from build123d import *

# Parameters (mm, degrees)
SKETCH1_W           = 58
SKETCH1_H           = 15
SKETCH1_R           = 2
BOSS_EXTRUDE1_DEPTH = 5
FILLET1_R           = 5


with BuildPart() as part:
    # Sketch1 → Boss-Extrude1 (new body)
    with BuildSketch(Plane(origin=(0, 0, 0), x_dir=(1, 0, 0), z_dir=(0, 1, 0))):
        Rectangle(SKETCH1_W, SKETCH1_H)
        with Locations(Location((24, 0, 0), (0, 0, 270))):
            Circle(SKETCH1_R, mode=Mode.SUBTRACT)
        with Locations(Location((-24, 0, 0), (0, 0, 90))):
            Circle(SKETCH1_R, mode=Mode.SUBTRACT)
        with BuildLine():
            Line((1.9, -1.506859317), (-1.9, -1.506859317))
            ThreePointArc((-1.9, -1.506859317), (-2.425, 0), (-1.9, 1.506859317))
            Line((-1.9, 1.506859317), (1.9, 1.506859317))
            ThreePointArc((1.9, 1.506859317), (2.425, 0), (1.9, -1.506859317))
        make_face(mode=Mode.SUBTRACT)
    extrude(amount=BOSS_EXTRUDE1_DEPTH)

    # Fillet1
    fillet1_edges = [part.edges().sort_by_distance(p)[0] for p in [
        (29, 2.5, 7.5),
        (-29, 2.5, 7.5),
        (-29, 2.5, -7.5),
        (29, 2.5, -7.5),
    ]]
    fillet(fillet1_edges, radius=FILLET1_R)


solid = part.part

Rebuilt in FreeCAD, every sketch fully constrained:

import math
import FreeCAD as App
import Part
import Sketcher
Q = App.Units.Quantity


def edges_at(feature, points):
    """Names of the edges that pass closest to the given points."""
    edges = feature.Shape.Edges
    near = lambda p: min(range(len(edges)), key=lambda i: edges[i].distToShape(Part.Vertex(*p))[0])
    return sorted({f"Edge{near(p) + 1}" for p in points})

doc = App.newDocument("Part")
body = doc.addObject("PartDesign::Body", "Body")

# Sketch on XZ plane
sketch1 = body.newObject("Sketcher::SketchObject", "Sketch")
sketch1.AttachmentSupport = (doc.getObject("XZ_Plane"), [""])
sketch1.MapMode = "FlatFace"
sketch1.addGeometry([
    Part.LineSegment(App.Vector(-29, -7.5, 0), App.Vector(-29, 7.5, 0)),  # 0
    Part.LineSegment(App.Vector(-29, 7.5, 0), App.Vector(29, 7.5, 0)),  # 1
    Part.LineSegment(App.Vector(29, 7.5, 0), App.Vector(29, -7.5, 0)),  # 2
    Part.LineSegment(App.Vector(29, -7.5, 0), App.Vector(-29, -7.5, 0)),  # 3
    Part.Circle(App.Vector(-24, 0, 0), App.Vector(0, 0, 1), 2),  # 4
    Part.ArcOfCircle(Part.Circle(App.Vector(0, 0, 0), App.Vector(0, 0, 1), 2.4), math.radians(-38), math.radians(38)),  # 5
    Part.LineSegment(App.Vector(1.9, 1.5, 0), App.Vector(-1.9, 1.5, 0)),  # 6
    Part.ArcOfCircle(Part.Circle(App.Vector(0, 0, 0), App.Vector(0, 0, 1), 2.4), math.radians(142), math.radians(218)),  # 7
    Part.LineSegment(App.Vector(-1.9, -1.5, 0), App.Vector(1.9, -1.5, 0)),  # 8
    Part.Circle(App.Vector(24, 0, 0), App.Vector(0, 0, 1), 2),  # 9
], False)
sketch1.addConstraint([
    Sketcher.Constraint("Coincident", 0, 2, 1, 1),
    Sketcher.Constraint("Coincident", 1, 2, 2, 1),
    Sketcher.Constraint("Coincident", 2, 2, 3, 1),
    Sketcher.Constraint("Coincident", 3, 2, 0, 1),
    Sketcher.Constraint("Coincident", 5, 2, 6, 1),
    Sketcher.Constraint("Coincident", 6, 2, 7, 1),
    Sketcher.Constraint("Coincident", 7, 2, 8, 1),
    Sketcher.Constraint("Coincident", 8, 2, 5, 1),
    Sketcher.Constraint("Vertical", 0),
    Sketcher.Constraint("Horizontal", 1),
    Sketcher.Constraint("Vertical", 2),
    Sketcher.Constraint("Horizontal", 3),
    Sketcher.Constraint("Horizontal", 6),
    Sketcher.Constraint("Horizontal", 8),
    Sketcher.Constraint("Coincident", 5, 3, -1, 1),
    Sketcher.Constraint("Coincident", 7, 3, -1, 1),
    Sketcher.Constraint("Equal", 5, 7),
    Sketcher.Constraint("Equal", 4, 9),
    Sketcher.Constraint("Symmetric", 4, 3, 9, 3, -1, 1),
    Sketcher.Constraint("Symmetric", 0, 2, 2, 2, -1, 1),
    Sketcher.Constraint("PointOnObject", 4, 3, -1),
    Sketcher.Constraint("Vertical", 6, 2, 7, 2),
    Sketcher.Constraint("Diameter", 4, Q("4 mm")),
    Sketcher.Constraint("DistanceX", 1, 1, 1, 2, Q("58 mm")),
    Sketcher.Constraint("DistanceY", 0, 1, 0, 2, Q("15 mm")),
    Sketcher.Constraint("DistanceX", 6, 2, 6, 1, Q("3.8 mm")),
    Sketcher.Constraint("DistanceX", 4, 3, -1, 1, Q("24 mm")),
    Sketcher.Constraint("Radius", 5, Q("2.425 mm")),
])
pad1 = body.newObject("PartDesign::Pad", "Pad")
pad1.Profile = sketch1
pad1.Length = 5
pad1.Reversed = True
doc.recompute()

fillet = body.newObject("PartDesign::Fillet", "Fillet")
fillet.Base = (pad1, edges_at(pad1, [
    (29, 2.5, 7.5),
    (-29, 2.5, 7.5),
    (-29, 2.5, -7.5),
    (29, 2.5, -7.5),
]))
fillet.Radius = 5

doc.recompute()
